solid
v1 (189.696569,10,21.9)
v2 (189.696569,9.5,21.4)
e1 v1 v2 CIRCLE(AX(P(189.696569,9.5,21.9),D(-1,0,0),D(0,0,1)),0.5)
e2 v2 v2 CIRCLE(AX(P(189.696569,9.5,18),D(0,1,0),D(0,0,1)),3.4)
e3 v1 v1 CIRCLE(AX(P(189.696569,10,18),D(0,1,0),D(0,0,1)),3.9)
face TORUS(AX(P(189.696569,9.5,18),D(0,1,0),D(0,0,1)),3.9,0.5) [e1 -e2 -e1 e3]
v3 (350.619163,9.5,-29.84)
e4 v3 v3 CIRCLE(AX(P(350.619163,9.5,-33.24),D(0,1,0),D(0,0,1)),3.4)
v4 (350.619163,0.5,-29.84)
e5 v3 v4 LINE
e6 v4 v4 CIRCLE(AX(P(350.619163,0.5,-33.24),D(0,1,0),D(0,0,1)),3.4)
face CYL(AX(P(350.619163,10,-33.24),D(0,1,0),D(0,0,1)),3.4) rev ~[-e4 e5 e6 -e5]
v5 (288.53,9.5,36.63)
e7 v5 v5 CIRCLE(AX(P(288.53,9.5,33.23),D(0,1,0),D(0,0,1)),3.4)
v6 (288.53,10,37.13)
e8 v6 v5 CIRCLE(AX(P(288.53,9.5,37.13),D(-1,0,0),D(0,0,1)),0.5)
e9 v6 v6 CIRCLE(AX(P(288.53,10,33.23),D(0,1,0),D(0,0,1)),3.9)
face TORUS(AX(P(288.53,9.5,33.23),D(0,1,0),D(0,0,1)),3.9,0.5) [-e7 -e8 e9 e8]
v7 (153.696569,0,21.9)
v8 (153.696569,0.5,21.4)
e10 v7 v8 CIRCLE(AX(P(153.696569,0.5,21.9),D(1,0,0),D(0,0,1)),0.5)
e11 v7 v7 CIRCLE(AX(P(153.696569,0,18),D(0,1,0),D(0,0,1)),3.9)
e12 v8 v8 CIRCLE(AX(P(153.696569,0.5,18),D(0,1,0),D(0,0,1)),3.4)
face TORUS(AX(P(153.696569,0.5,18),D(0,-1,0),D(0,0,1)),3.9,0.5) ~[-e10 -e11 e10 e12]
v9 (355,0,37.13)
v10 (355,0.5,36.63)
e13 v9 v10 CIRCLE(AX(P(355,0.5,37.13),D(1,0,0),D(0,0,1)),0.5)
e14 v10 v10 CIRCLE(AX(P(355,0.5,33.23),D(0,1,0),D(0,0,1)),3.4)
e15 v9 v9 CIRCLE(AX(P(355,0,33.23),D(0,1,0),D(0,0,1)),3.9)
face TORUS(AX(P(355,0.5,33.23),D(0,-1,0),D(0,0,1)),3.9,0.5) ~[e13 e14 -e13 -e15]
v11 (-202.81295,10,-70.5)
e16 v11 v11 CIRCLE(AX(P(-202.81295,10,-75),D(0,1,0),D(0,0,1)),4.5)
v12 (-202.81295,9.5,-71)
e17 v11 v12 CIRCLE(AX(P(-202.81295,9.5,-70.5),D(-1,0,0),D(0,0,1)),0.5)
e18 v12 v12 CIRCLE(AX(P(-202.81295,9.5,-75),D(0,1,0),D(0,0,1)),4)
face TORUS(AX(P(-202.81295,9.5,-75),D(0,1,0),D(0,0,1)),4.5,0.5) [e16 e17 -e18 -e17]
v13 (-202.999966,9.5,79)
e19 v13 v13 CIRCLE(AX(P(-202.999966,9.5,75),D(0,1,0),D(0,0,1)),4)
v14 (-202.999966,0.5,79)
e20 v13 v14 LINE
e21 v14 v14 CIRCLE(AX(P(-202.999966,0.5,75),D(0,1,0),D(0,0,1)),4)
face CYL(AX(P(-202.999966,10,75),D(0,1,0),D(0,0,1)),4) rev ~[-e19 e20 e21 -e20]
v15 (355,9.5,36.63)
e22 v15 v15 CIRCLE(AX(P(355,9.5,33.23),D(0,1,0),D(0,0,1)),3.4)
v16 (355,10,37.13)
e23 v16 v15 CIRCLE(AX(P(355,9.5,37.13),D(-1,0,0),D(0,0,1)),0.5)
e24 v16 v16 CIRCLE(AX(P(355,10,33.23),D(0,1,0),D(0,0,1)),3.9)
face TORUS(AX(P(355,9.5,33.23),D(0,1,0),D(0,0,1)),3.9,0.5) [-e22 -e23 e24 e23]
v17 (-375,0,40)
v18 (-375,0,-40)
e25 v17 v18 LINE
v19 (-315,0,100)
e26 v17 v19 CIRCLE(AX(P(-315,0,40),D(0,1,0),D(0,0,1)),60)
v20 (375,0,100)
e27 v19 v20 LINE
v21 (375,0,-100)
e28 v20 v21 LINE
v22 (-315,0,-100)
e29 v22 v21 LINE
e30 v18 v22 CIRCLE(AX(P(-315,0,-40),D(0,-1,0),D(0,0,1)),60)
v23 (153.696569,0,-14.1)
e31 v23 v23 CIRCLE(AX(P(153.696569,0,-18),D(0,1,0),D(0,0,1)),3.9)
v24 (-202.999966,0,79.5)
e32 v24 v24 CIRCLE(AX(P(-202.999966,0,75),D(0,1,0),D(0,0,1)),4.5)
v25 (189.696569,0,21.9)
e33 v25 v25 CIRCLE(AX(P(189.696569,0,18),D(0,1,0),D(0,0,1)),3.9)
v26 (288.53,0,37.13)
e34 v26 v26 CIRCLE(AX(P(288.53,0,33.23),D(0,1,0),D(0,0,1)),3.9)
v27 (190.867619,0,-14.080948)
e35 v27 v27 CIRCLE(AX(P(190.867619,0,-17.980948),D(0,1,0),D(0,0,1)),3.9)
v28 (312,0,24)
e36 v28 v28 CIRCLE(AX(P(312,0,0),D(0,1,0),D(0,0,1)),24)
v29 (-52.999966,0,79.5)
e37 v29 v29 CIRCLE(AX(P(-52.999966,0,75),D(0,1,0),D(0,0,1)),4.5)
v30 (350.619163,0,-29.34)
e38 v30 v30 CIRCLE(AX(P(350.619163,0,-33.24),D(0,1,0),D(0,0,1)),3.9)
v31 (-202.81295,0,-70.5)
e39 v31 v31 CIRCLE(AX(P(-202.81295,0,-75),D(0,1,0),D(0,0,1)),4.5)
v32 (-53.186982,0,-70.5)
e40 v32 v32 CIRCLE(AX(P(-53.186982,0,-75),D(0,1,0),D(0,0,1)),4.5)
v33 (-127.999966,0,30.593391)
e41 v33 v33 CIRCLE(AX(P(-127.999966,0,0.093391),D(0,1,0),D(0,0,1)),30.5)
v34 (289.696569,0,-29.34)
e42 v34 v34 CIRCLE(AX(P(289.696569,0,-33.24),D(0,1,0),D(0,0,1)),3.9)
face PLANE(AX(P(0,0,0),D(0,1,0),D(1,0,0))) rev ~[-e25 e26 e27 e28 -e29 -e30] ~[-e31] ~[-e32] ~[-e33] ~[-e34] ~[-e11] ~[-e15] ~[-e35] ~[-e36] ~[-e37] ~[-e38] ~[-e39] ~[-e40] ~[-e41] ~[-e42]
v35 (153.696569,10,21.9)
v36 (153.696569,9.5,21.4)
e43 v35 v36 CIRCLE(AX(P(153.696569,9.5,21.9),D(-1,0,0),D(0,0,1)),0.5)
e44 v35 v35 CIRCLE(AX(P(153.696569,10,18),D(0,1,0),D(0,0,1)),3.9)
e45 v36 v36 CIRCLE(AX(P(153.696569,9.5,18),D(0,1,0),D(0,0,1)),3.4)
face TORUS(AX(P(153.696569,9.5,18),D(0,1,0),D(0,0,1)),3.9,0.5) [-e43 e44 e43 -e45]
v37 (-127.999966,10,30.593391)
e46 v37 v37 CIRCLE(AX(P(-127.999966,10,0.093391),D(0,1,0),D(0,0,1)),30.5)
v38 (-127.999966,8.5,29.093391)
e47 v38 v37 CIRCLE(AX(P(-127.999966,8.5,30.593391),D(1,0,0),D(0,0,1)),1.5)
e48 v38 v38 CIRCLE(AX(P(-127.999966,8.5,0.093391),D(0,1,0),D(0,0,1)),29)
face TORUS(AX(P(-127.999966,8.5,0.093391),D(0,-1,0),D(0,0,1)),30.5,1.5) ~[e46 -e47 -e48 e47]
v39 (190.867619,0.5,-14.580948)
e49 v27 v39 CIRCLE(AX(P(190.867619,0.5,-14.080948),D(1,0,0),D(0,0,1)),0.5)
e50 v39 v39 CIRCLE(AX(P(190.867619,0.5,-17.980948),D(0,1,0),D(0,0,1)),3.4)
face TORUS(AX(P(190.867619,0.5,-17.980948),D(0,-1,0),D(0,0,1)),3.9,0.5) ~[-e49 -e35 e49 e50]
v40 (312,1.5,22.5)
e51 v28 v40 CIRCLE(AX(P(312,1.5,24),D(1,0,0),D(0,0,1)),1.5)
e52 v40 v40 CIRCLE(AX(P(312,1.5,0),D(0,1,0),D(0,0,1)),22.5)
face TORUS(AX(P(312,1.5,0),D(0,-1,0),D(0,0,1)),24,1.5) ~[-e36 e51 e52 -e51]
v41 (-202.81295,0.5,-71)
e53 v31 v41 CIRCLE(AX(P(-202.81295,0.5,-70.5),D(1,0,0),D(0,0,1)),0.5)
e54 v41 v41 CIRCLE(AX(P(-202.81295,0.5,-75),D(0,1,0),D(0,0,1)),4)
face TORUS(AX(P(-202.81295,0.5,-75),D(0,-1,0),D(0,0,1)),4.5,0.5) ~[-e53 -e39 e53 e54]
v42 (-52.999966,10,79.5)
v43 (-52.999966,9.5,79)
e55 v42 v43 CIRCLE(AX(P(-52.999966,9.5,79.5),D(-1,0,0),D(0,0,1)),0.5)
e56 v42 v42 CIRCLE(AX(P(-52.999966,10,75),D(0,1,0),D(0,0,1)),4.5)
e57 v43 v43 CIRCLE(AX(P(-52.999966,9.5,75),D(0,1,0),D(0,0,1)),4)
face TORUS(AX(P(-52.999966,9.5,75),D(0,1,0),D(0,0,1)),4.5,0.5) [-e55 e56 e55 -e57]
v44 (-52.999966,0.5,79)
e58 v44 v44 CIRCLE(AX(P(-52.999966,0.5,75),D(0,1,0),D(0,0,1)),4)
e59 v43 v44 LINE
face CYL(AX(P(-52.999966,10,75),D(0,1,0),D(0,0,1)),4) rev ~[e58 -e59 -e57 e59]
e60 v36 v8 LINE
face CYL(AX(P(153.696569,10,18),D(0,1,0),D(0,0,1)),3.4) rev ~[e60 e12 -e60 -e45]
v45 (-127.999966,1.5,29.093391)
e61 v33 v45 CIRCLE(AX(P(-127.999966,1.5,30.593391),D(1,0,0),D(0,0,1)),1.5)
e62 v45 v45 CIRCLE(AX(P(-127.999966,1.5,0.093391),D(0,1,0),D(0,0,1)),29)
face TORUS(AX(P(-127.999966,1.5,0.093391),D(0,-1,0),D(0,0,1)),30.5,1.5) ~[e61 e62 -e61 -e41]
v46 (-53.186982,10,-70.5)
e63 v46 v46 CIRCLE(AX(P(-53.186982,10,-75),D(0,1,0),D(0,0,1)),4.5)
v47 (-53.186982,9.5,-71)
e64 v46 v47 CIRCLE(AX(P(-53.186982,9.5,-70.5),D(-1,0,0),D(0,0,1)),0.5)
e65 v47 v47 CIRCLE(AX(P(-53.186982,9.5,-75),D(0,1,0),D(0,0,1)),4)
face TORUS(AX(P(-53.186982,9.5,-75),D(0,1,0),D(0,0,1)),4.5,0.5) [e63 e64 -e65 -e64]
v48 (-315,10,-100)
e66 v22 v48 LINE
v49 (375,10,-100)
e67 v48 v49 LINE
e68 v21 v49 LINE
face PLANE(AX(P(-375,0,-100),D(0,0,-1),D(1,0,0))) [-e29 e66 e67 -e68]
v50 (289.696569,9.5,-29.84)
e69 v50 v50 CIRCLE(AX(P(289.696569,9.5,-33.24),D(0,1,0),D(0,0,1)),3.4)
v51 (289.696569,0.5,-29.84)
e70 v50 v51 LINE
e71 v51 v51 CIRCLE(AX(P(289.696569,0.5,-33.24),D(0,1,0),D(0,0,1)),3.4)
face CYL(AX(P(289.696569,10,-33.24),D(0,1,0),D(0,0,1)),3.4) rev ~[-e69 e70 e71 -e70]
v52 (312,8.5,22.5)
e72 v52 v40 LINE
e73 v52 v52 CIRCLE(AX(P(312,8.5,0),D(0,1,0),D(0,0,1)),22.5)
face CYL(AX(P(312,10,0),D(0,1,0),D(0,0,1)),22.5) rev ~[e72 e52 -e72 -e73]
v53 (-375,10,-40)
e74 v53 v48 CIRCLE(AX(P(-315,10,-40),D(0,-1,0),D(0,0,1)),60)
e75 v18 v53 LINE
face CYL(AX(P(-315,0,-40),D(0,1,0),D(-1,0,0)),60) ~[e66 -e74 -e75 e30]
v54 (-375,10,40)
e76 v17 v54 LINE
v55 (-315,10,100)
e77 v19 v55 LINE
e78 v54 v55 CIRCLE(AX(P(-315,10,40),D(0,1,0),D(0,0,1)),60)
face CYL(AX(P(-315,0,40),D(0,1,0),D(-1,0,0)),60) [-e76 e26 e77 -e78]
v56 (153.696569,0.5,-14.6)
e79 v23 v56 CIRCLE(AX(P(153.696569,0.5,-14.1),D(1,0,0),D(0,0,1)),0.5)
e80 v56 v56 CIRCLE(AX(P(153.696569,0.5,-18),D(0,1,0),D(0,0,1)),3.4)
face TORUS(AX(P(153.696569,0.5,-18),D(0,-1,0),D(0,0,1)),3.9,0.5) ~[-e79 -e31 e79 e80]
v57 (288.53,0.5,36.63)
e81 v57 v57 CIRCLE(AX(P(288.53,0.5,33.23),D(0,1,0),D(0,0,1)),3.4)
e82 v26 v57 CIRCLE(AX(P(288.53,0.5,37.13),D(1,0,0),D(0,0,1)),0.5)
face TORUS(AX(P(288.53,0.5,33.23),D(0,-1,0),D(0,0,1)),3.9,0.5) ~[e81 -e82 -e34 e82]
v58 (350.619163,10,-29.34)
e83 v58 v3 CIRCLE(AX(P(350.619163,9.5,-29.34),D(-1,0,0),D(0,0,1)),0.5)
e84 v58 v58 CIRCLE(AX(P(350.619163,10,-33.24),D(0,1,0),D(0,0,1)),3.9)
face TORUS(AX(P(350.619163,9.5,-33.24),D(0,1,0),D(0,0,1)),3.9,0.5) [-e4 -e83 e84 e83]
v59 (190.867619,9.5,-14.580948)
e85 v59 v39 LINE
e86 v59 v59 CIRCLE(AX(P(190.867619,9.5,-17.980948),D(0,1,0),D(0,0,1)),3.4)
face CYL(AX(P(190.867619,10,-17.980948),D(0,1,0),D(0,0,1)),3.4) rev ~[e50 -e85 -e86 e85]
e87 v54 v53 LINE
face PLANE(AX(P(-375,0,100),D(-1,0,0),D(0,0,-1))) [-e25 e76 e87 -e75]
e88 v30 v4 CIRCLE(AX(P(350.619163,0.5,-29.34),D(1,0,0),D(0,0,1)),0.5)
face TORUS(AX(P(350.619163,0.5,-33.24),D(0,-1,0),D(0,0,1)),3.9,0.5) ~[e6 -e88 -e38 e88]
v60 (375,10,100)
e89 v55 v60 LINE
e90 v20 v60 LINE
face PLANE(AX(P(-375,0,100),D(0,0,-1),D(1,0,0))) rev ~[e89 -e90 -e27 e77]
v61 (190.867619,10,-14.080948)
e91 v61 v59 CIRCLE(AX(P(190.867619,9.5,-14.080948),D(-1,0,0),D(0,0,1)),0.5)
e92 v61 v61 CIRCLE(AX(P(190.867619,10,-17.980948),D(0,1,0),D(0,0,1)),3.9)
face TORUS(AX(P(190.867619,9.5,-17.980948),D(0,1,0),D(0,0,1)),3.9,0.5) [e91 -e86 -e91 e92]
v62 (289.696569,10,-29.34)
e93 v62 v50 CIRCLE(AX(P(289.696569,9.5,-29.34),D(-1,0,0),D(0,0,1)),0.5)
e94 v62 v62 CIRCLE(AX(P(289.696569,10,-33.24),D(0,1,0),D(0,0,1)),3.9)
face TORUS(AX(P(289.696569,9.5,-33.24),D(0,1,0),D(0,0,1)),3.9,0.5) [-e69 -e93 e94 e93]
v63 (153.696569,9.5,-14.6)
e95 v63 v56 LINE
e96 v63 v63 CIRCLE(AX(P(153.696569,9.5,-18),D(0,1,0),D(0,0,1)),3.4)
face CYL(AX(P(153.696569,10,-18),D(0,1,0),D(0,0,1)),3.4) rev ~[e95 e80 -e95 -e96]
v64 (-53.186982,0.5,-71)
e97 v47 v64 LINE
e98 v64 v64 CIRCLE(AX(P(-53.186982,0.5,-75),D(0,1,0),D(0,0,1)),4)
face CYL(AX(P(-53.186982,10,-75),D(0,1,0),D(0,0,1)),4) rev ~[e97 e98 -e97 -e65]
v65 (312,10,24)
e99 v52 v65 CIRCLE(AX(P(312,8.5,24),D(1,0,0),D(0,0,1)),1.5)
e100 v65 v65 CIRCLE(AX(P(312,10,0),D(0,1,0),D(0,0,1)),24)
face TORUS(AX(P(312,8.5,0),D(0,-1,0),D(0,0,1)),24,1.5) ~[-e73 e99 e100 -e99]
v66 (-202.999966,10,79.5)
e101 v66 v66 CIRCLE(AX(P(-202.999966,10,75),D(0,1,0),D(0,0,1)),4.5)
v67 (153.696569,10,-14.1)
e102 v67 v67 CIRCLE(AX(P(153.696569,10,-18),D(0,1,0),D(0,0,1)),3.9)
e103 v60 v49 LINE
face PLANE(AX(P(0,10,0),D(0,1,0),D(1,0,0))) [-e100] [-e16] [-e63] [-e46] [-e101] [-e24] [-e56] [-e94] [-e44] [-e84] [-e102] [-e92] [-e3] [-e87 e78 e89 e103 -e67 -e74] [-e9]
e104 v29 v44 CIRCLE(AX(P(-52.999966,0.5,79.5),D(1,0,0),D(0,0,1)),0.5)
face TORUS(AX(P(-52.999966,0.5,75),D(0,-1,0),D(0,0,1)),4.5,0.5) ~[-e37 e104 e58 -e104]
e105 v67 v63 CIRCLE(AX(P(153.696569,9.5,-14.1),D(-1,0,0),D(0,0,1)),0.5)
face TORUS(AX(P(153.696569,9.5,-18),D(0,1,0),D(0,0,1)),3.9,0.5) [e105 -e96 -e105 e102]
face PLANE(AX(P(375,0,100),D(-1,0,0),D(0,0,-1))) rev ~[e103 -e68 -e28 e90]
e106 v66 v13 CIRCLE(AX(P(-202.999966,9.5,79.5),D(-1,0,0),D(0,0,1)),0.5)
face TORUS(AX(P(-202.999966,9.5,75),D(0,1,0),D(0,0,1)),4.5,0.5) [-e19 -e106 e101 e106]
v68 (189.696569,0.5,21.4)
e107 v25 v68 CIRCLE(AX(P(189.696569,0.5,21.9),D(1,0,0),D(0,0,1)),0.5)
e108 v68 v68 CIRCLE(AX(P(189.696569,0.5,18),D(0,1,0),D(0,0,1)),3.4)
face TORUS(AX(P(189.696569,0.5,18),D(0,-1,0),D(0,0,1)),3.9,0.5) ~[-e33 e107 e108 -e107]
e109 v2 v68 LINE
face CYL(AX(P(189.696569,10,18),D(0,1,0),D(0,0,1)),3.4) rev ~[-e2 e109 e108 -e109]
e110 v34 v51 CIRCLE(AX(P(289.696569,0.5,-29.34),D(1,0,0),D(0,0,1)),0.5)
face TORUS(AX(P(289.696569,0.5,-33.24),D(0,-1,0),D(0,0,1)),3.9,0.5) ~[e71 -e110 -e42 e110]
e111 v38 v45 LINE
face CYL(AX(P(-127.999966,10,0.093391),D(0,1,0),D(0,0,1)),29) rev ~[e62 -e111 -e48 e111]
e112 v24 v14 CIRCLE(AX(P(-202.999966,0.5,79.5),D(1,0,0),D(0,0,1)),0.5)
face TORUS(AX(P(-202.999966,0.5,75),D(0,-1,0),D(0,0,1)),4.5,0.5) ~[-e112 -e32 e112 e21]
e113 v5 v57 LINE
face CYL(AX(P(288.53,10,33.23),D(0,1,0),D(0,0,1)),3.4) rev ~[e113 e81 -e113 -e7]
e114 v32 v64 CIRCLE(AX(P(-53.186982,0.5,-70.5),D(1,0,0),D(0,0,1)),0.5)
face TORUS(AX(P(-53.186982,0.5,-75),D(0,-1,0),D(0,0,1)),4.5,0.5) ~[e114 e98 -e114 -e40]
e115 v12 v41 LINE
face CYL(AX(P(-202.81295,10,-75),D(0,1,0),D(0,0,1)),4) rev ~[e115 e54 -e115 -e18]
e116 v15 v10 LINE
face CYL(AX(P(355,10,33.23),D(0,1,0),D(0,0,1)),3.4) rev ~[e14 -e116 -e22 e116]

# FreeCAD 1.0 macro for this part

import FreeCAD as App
import Part
import Sketcher
from FreeCAD import Vector
Q = App.Units.Quantity


def edges_at(feature, points):
    """Names of the edges that pass closest to the given points."""
    edges = feature.Shape.Edges
    near = lambda p: min(range(len(edges)), key=lambda i: edges[i].distToShape(Part.Vertex(*p))[0])
    return sorted({f"Edge{near(p) + 1}" for p in points})


def add_polygon(sketch, points):
    """Adds a closed chain of lines whose ends are joined by coincident constraints."""
    first, n = sketch.GeometryCount, len(points)
    for a, b in zip(points, points[1:] + points[:1]):
        sketch.addGeometry(Part.LineSegment(App.Vector(*a, 0), App.Vector(*b, 0)), False)
    for i in range(n):
        sketch.addConstraint(Sketcher.Constraint("Coincident", first + i, 2, first + (i + 1) % n, 1))

doc = App.newDocument("Part")
body = doc.addObject("PartDesign::Body", "Body")

# Sketch on XZ plane
sketch1 = body.newObject("Sketcher::SketchObject", "Sketch")
sketch1.AttachmentSupport = (doc.getObject("XZ_Plane"), [""])
sketch1.MapMode = "FlatFace"
add_polygon(sketch1, [(-375, -100), (-375, 100), (375, 100), (375, -100)])  # lines 0-3
sketch1.addConstraint(Sketcher.Constraint("Vertical", 0))
sketch1.addConstraint(Sketcher.Constraint("Horizontal", 1))
sketch1.addConstraint(Sketcher.Constraint("Vertical", 2))
sketch1.addConstraint(Sketcher.Constraint("Horizontal", 3))
sketch1.addConstraint(Sketcher.Constraint("Symmetric", 0, 2, 2, 2, -1, 1))
sketch1.addConstraint(Sketcher.Constraint("DistanceX", 1, 1, 1, 2, Q("750 mm")))
sketch1.addConstraint(Sketcher.Constraint("DistanceY", 0, 1, 0, 2, Q("200 mm")))
pad1 = body.newObject("PartDesign::Pad", "Pad")
pad1.Profile = sketch1
pad1.Length = 10
pad1.Reversed = True

# Sketch on XZ plane
sketch2 = body.newObject("Sketcher::SketchObject", "Sketch001")
sketch2.AttachmentSupport = (doc.getObject("XZ_Plane"), [""])
sketch2.MapMode = "FlatFace"
sketch2.AttachmentOffset = App.Placement(Vector(0, 0, -10), App.Rotation())
sketch2.addGeometry(Part.Circle(Vector(-127.999966, 0.093391, 0), Vector(0, 0, 1), 29), False)
sketch2.addGeometry(Part.Circle(Vector(153.696569, 18, 0), Vector(0, 0, 1), 3.4), False)
sketch2.addGeometry(Part.Circle(Vector(153.696569, -18, 0), Vector(0, 0, 1), 3.4), False)
sketch2.addGeometry(Part.Circle(Vector(190.867619, -17.980948, 0), Vector(0, 0, 1), 3.4), False)
sketch2.addGeometry(Part.Circle(Vector(189.696569, 18, 0), Vector(0, 0, 1), 3.4), False)
sketch2.addGeometry(Part.Circle(Vector(288.53, 33.23, 0), Vector(0, 0, 1), 3.4), False)
sketch2.addGeometry(Part.Circle(Vector(289.696569, -33.24, 0), Vector(0, 0, 1), 3.4), False)
sketch2.addGeometry(Part.Circle(Vector(350.619163, -33.24, 0), Vector(0, 0, 1), 3.4), False)
sketch2.addGeometry(Part.Circle(Vector(355, 33.23, 0), Vector(0, 0, 1), 3.4), False)
sketch2.addGeometry(Part.Circle(Vector(312, 0, 0), Vector(0, 0, 1), 22.5), False)
sketch2.addGeometry(Part.Circle(Vector(-52.999966, 75, 0), Vector(0, 0, 1), 4), False)
sketch2.addGeometry(Part.Circle(Vector(-202.999966, 75, 0), Vector(0, 0, 1), 4), False)
sketch2.addGeometry(Part.Circle(Vector(-202.81295, -75, 0), Vector(0, 0, 1), 4), False)
sketch2.addGeometry(Part.Circle(Vector(-53.186982, -75, 0), Vector(0, 0, 1), 4), False)
sketch2.addConstraint(Sketcher.Constraint("Equal", 1, 2))
sketch2.addConstraint(Sketcher.Constraint("Equal", 2, 3))
sketch2.addConstraint(Sketcher.Constraint("Equal", 3, 4))
sketch2.addConstraint(Sketcher.Constraint("Equal", 4, 5))
sketch2.addConstraint(Sketcher.Constraint("Equal", 5, 6))
sketch2.addConstraint(Sketcher.Constraint("Equal", 6, 7))
sketch2.addConstraint(Sketcher.Constraint("Equal", 7, 8))
sketch2.addConstraint(Sketcher.Constraint("Equal", 10, 11))
sketch2.addConstraint(Sketcher.Constraint("Equal", 11, 12))
sketch2.addConstraint(Sketcher.Constraint("Equal", 12, 13))
sketch2.addConstraint(Sketcher.Constraint("Symmetric", 1, 3, 2, 3, -1))
sketch2.addConstraint(Sketcher.Constraint("PointOnObject", 9, 3, -1))
sketch2.addConstraint(Sketcher.Constraint("Horizontal", 1, 3, 4, 3))
sketch2.addConstraint(Sketcher.Constraint("Horizontal", 6, 3, 7, 3))
sketch2.addConstraint(Sketcher.Constraint("Horizontal", 5, 3, 8, 3))
sketch2.addConstraint(Sketcher.Constraint("Horizontal", 10, 3, 11, 3))
sketch2.addConstraint(Sketcher.Constraint("Horizontal", 12, 3, 13, 3))
sketch2.addConstraint(Sketcher.Constraint("Diameter", 0, Q("58 mm")))
sketch2.addConstraint(Sketcher.Constraint("Diameter", 9, Q("45 mm")))
sketch2.addConstraint(Sketcher.Constraint("Diameter", 10, Q("8 mm")))
sketch2.addConstraint(Sketcher.Constraint("Diameter", 1, Q("6.8 mm")))
sketch2.addConstraint(Sketcher.Constraint("DistanceY", -1, 1, 1, 3, Q("18 mm")))
sketch2.addConstraint(Sketcher.Constraint("DistanceX", -1, 1, 8, 3, Q("355 mm")))
sketch2.addConstraint(Sketcher.Constraint("DistanceX", -1, 1, 9, 3, Q("312 mm")))
sketch2.addConstraint(Sketcher.Constraint("DistanceY", -1, 1, 10, 3, Q("75 mm")))
sketch2.addConstraint(Sketcher.Constraint("DistanceY", 12, 3, -1, 1, Q("75 mm")))
sketch2.addConstraint(Sketcher.Constraint("DistanceX", 1, 3, 4, 3, Q("36 mm")))
sketch2.addConstraint(Sketcher.Constraint("DistanceX", 4, 3, 6, 3, Q("100 mm")))
sketch2.addConstraint(Sketcher.Constraint("DistanceX", 0, 3, 10, 3, Q("75 mm")))
sketch2.addConstraint(Sketcher.Constraint("DistanceX", 11, 3, 0, 3, Q("75 mm")))
sketch2.addConstraint(Sketcher.Constraint("DistanceX", -1, 1, 5, 3, Q("288.53 mm")))
sketch2.addConstraint(Sketcher.Constraint("DistanceY", -1, 1, 5, 3, Q("33.23 mm")))
sketch2.addConstraint(Sketcher.Constraint("DistanceY", 6, 3, -1, 1, Q("33.24 mm")))
sketch2.addConstraint(Sketcher.Constraint("DistanceY", -1, 1, 0, 3, Q("0.093391 mm")))
sketch2.addConstraint(Sketcher.Constraint("DistanceX", -1, 1, 1, 3, Q("153.696569 mm")))
sketch2.addConstraint(Sketcher.Constraint("DistanceX", -1, 1, 3, 3, Q("190.867619 mm")))
sketch2.addConstraint(Sketcher.Constraint("DistanceY", 3, 3, -1, 1, Q("17.980948 mm")))
sketch2.addConstraint(Sketcher.Constraint("DistanceX", 12, 3, -1, 1, Q("202.81295 mm")))
sketch2.addConstraint(Sketcher.Constraint("DistanceX", 13, 3, 2, 3, Q("206.883551 mm")))
sketch2.addConstraint(Sketcher.Constraint("DistanceX", 0, 3, -1, 1, Q("127.999966 mm")))
sketch2.addConstraint(Sketcher.Constraint("DistanceX", -1, 1, 7, 3, Q("350.619163 mm")))
pocket1 = body.newObject("PartDesign::Pocket", "Pocket")
pocket1.Profile = sketch2
pocket1.Length = 20
pocket1.Reversed = True
doc.recompute()

fillet = body.newObject("PartDesign::Fillet", "Fillet")
fillet.Base = (pocket1, edges_at(pocket1, [(-375, 5, 100), (-375, 5, -100)]))
fillet.Radius = 60
doc.recompute()

fillet2 = body.newObject("PartDesign::Fillet", "Fillet001")
fillet2.Base = (fillet, edges_at(fillet, [
    (153.697, 0, -21.4),
    (153.697, 10, -21.4),
    (153.697, 0, 14.6),
    (153.697, 10, 14.6),
    (190.868, 0, -21.381),
    (190.868, 10, -21.381),
    (189.697, 0, 14.6),
    (189.697, 10, 14.6),
    (288.53, 0, 29.83),
    (288.53, 10, 29.83),
    (289.697, 0, -36.64),
    (289.697, 10, -36.64),
    (350.619, 0, -36.64),
    (350.619, 10, -36.64),
    (355, 0, 29.83),
    (355, 10, 29.83),
    (-53.187, 0, -79),
    (-53.187, 10, -79),
    (-202.813, 0, -79),
    (-202.813, 10, -79),
    (-203, 0, 71),
    (-203, 10, 71),
    (-53, 0, 71),
    (-53, 10, 71),
]))
fillet2.Radius = 0.5
doc.recompute()

fillet3 = body.newObject("PartDesign::Fillet", "Fillet002")
fillet3.Base = (fillet2, edges_at(fillet2, [
    (312, 0, -22.5),
    (312, 10, -22.5),
    (-128, 0, -28.907),
    (-128, 10, -28.907),
]))
fillet3.Radius = 1.5

doc.recompute()
